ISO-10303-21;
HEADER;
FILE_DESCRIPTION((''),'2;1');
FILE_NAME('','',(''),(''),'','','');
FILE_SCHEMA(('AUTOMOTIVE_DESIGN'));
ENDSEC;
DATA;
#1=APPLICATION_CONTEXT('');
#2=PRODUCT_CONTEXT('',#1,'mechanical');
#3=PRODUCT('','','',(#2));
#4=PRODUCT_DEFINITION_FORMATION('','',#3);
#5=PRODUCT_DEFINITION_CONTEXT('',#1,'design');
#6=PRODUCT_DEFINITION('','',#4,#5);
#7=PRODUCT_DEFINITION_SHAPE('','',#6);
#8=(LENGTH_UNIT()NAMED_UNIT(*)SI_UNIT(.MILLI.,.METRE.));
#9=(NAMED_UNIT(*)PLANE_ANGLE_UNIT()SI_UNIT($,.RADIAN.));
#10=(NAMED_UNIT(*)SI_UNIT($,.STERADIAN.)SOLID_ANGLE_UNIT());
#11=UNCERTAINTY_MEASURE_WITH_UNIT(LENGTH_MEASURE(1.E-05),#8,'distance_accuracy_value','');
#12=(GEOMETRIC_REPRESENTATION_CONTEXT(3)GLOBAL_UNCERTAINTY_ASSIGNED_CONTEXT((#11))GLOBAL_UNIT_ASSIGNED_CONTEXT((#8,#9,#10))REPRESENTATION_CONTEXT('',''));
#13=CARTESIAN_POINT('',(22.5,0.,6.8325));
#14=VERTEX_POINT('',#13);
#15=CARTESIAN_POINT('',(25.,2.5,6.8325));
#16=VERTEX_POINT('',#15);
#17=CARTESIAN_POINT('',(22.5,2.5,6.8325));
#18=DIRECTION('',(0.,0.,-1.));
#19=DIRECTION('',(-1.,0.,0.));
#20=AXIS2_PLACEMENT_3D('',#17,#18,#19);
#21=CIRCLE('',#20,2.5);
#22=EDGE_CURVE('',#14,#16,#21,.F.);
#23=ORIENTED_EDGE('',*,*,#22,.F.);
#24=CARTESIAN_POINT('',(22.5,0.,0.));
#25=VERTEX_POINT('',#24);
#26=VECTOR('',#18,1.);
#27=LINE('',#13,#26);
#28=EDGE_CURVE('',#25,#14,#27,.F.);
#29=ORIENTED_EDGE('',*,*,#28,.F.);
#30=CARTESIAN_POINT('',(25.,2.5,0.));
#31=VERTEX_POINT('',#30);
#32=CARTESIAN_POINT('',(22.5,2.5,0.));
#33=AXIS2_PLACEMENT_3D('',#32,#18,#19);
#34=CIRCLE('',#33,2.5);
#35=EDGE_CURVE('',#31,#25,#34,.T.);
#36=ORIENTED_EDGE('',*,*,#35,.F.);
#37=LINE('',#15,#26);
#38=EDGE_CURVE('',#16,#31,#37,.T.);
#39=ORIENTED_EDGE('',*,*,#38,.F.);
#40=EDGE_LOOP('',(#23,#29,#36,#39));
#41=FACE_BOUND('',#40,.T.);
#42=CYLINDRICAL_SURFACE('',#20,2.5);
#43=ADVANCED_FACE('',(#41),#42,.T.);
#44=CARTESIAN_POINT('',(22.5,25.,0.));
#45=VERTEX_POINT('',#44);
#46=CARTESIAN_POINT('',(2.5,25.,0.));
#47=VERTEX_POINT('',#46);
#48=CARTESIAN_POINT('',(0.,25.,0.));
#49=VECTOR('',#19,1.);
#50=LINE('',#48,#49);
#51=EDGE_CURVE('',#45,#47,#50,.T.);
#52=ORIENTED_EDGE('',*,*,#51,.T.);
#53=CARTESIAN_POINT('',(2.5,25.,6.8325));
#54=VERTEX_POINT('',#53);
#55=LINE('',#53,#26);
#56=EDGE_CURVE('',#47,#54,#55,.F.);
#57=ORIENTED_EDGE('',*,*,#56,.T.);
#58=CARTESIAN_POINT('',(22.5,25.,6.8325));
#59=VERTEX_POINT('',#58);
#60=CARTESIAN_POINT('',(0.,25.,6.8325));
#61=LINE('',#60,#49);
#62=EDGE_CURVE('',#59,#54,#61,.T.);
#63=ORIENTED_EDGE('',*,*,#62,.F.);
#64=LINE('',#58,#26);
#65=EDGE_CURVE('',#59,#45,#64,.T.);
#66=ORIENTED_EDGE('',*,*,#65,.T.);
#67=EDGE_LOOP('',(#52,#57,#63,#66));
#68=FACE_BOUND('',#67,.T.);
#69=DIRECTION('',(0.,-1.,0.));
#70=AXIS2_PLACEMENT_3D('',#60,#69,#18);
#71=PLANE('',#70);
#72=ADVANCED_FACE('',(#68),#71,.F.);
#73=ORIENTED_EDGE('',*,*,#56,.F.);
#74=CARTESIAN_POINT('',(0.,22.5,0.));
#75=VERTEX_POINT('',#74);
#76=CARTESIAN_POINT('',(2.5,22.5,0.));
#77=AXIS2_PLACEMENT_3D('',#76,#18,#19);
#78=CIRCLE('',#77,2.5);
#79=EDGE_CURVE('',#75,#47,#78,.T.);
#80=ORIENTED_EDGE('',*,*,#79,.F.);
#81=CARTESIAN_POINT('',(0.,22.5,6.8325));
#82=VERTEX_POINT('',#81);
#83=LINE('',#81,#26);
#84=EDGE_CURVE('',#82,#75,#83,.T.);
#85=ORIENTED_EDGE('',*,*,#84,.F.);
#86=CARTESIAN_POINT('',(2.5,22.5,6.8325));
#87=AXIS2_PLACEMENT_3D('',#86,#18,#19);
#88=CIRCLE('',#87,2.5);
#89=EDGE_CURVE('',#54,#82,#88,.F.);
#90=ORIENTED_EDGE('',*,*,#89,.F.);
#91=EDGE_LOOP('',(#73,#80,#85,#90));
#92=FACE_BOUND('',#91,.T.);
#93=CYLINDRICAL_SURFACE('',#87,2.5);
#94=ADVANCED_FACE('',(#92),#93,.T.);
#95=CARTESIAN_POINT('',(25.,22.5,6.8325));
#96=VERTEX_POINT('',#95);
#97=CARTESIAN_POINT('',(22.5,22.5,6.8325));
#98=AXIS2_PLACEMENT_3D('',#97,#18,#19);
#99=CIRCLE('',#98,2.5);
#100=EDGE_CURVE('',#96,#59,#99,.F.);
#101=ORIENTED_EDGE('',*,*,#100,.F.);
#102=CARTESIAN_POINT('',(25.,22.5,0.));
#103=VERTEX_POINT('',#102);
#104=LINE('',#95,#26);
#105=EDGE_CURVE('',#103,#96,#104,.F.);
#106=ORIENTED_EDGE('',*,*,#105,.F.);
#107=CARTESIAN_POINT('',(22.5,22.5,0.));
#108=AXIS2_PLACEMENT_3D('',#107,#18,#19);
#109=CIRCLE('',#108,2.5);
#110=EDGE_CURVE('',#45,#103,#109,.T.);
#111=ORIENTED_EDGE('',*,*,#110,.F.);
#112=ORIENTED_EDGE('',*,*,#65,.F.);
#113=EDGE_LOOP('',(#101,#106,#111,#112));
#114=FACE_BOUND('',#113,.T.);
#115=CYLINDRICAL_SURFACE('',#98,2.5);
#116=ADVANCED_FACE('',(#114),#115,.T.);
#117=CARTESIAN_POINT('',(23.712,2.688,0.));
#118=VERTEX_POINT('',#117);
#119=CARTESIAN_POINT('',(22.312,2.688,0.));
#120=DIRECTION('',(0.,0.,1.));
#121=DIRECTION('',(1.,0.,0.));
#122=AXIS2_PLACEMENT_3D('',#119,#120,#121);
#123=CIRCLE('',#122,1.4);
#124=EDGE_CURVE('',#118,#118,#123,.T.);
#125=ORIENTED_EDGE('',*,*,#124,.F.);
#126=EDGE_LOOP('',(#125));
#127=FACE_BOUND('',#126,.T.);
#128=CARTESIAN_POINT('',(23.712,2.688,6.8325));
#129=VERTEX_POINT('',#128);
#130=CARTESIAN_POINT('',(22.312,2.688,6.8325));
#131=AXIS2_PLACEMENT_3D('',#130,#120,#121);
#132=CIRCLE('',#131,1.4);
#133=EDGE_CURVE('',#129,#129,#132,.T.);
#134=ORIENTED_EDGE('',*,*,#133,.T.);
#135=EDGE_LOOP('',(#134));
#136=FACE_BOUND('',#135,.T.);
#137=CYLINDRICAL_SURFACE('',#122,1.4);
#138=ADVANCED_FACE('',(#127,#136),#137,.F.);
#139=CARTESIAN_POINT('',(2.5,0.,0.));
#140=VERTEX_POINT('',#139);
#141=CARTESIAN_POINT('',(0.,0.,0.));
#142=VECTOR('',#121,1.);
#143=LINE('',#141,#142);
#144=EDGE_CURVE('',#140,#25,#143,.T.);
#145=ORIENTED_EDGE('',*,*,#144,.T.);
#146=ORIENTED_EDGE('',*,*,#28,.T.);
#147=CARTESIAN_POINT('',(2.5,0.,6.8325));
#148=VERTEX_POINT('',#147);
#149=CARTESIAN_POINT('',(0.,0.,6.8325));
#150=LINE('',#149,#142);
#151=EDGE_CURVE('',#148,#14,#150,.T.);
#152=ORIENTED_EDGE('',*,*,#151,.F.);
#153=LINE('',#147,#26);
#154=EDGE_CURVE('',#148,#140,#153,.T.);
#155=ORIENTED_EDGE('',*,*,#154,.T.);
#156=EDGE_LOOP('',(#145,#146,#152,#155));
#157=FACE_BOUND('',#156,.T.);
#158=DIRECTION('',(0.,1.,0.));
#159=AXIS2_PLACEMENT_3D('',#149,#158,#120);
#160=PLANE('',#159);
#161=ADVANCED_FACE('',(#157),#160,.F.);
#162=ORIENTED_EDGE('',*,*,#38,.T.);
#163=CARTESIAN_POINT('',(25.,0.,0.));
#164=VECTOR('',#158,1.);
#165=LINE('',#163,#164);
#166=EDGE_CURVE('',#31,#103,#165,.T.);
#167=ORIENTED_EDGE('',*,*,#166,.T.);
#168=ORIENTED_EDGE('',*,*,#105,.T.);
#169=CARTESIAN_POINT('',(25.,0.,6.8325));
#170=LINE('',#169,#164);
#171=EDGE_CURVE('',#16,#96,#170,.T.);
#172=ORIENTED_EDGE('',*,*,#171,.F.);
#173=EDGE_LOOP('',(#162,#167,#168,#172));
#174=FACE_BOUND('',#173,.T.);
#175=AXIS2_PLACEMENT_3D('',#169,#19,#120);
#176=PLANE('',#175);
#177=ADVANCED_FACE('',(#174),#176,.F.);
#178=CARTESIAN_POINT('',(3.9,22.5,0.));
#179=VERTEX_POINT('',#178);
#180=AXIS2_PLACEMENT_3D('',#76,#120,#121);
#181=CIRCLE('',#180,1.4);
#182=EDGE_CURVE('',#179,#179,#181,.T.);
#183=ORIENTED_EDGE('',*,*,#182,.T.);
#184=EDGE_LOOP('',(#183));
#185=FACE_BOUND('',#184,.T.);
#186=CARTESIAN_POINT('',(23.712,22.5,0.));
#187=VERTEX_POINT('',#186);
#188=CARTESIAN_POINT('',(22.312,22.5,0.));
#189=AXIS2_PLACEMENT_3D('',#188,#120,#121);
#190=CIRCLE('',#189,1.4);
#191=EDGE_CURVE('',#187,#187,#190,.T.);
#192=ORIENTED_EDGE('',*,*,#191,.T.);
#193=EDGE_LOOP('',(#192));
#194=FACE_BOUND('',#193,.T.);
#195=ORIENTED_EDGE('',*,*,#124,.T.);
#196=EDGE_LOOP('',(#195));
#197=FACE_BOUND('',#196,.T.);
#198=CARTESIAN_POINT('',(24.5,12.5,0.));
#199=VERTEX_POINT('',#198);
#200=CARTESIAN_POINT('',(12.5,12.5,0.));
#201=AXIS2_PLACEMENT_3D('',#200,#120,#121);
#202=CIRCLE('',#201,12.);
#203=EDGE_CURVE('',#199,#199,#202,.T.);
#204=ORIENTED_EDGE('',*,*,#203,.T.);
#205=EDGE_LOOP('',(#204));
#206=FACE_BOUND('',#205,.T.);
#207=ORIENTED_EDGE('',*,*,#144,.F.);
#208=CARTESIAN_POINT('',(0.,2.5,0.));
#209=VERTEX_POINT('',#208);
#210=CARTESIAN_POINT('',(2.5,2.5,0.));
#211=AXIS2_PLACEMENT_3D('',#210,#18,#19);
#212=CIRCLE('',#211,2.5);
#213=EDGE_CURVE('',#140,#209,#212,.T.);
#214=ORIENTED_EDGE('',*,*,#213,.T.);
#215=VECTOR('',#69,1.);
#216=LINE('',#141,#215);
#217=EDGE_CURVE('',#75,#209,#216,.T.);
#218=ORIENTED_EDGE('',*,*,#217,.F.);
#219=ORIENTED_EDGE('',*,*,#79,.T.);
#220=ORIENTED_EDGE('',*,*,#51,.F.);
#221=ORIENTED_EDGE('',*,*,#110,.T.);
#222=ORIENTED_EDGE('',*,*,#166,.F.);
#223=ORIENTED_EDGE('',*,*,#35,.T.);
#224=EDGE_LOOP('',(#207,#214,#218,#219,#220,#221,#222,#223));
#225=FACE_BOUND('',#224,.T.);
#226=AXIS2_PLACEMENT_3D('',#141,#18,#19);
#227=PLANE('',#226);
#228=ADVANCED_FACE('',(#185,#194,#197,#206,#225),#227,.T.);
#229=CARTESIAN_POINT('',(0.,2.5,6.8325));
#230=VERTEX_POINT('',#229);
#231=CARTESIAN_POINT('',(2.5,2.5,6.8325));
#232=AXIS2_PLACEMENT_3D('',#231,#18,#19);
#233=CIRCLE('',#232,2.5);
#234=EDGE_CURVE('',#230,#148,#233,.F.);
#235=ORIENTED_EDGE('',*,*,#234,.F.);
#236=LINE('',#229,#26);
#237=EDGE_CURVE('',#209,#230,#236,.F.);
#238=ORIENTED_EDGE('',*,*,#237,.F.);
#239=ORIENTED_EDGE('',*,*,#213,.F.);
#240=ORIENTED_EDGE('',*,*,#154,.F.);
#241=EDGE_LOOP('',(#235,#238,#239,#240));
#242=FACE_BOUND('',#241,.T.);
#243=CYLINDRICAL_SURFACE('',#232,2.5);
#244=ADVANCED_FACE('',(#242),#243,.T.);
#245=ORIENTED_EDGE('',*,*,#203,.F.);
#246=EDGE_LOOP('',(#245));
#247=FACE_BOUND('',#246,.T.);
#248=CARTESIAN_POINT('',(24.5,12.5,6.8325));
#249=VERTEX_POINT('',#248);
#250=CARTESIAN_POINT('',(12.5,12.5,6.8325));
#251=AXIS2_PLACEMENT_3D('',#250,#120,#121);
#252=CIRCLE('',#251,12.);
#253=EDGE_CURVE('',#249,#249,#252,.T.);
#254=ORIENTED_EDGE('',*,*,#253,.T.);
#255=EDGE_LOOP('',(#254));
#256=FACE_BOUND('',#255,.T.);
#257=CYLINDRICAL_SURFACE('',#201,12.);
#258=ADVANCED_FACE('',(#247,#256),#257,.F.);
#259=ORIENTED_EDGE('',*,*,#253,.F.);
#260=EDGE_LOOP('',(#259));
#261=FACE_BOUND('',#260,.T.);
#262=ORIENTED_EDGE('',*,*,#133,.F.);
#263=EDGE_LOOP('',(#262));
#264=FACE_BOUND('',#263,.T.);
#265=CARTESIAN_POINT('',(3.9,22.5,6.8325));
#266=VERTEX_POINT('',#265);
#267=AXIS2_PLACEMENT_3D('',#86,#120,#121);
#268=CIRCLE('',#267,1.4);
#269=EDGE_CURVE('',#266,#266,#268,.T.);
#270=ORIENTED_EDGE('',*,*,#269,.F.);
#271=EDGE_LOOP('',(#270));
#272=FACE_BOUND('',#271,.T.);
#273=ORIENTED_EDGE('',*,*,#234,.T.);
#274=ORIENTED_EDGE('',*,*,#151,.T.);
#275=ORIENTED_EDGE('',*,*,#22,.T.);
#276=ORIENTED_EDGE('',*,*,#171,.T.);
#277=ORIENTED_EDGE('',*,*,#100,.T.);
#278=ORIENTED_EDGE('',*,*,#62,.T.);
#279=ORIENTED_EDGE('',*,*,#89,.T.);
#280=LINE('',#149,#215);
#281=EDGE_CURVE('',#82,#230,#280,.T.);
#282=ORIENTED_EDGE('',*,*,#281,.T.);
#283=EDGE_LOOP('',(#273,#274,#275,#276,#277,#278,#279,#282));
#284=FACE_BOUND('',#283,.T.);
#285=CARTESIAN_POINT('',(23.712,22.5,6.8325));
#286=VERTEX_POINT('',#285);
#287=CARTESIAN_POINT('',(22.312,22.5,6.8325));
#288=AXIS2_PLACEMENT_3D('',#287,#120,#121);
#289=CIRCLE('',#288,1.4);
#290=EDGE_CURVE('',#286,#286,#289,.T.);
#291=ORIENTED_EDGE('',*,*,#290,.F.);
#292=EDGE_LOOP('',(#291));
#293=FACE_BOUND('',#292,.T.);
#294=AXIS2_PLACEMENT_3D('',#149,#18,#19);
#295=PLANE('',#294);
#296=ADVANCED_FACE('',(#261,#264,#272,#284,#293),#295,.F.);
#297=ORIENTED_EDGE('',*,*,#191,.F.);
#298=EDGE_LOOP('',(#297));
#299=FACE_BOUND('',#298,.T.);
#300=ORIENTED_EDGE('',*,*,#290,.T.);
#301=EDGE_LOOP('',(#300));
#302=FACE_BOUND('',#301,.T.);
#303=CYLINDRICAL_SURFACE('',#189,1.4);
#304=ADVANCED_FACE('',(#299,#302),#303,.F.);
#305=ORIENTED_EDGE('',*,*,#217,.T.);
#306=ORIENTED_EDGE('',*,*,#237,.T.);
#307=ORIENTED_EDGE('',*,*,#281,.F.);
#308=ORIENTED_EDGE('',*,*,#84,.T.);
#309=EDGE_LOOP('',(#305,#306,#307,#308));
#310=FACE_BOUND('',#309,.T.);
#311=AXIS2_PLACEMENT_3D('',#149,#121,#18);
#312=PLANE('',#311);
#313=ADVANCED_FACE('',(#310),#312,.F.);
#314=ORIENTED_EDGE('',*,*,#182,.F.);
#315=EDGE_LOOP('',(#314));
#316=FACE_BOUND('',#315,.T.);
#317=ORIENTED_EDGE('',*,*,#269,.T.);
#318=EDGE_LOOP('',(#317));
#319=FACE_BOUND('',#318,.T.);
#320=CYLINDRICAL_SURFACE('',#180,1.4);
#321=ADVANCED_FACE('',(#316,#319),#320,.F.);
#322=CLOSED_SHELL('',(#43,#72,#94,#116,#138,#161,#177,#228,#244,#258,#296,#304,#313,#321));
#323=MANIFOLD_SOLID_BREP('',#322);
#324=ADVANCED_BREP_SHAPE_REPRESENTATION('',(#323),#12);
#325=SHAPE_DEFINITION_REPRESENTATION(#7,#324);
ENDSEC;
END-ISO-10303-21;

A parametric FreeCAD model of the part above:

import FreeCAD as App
import Part
import Sketcher
Q = App.Units.Quantity


def edges_at(feature, points):
    """Names of the edges that pass closest to the given points."""
    edges = feature.Shape.Edges
    near = lambda p: min(range(len(edges)), key=lambda i: edges[i].distToShape(Part.Vertex(*p))[0])
    return sorted({f"Edge{near(p) + 1}" for p in points})


def add_polygon(sketch, points):
    """Adds a closed chain of lines whose ends are joined by coincident constraints."""
    first, n = sketch.GeometryCount, len(points)
    for a, b in zip(points, points[1:] + points[:1]):
        sketch.addGeometry(Part.LineSegment(App.Vector(*a, 0), App.Vector(*b, 0)), False)
    for i in range(n):
        sketch.addConstraint(Sketcher.Constraint("Coincident", first + i, 2, first + (i + 1) % n, 1))

doc = App.newDocument("Part")
body = doc.addObject("PartDesign::Body", "Body")

# Sketch on XY plane
sketch1 = doc.addObject("Sketcher::SketchObject", "Sketch")
body.addObject(sketch1)
sketch1.AttachmentSupport = (doc.XY_Plane, [""])
sketch1.MapMode = "FlatFace"
add_polygon(sketch1, [(0, 25), (0, 0), (25, 0), (25, 25)])  # lines 0-3
sketch1.addConstraint([
    Sketcher.Constraint("Vertical", 0),
    Sketcher.Constraint("Horizontal", 1),
    Sketcher.Constraint("Vertical", 2),
    Sketcher.Constraint("Horizontal", 3),
    Sketcher.Constraint("Coincident", 0, 2, -1, 1),
    Sketcher.Constraint("Equal", 3, 0),
    Sketcher.Constraint("DistanceX", 1, 1, 1, 2, Q("25 mm")),
])
pad1 = doc.addObject("PartDesign::Pad", "Pad")
body.addObject(pad1)
pad1.Profile = sketch1
pad1.Length = 6.8325

# Sketch on XY plane
sketch2 = doc.addObject("Sketcher::SketchObject", "Sketch001")
body.addObject(sketch2)
sketch2.AttachmentSupport = (doc.XY_Plane, [""])
sketch2.MapMode = "FlatFace"
sketch2.AttachmentOffset = App.Placement(App.Vector(0, 0, 6.8325), App.Rotation())
sketch2.addGeometry(Part.Circle(App.Vector(12.5, 12.5, 0), App.Vector(0, 0, 1), 12), False)
sketch2.addConstraint([
    Sketcher.Constraint("Diameter", 0, Q("24 mm")),
    Sketcher.Constraint("DistanceX", -1, 1, 0, 3, Q("12.5 mm")),
    Sketcher.Constraint("DistanceY", -1, 1, 0, 3, Q("12.5 mm")),
])
pocket1 = doc.addObject("PartDesign::Pocket", "Pocket")
body.addObject(pocket1)
pocket1.Profile = sketch2
pocket1.Type = "ThroughAll"

# Sketch on XY plane
sketch3 = doc.addObject("Sketcher::SketchObject", "Sketch002")
body.addObject(sketch3)
sketch3.AttachmentSupport = (doc.XY_Plane, [""])
sketch3.MapMode = "FlatFace"
sketch3.AttachmentOffset = App.Placement(App.Vector(0, 0, 6.8325), App.Rotation())
sketch3.addGeometry([
    Part.Circle(App.Vector(2.5, 22.5, 0), App.Vector(0, 0, 1), 1.4),
    Part.Circle(App.Vector(22.312, 22.5, 0), App.Vector(0, 0, 1), 1.4),
    Part.Circle(App.Vector(22.312, 2.688, 0), App.Vector(0, 0, 1), 1.4),
], False)
sketch3.addConstraint([
    Sketcher.Constraint("Equal", 0, 1),
    Sketcher.Constraint("Equal", 1, 2),
    Sketcher.Constraint("Horizontal", 0, 3, 1, 3),
    Sketcher.Constraint("Vertical", 1, 3, 2, 3),
    Sketcher.Constraint("Diameter", 0, Q("2.8 mm")),
    Sketcher.Constraint("DistanceX", -1, 1, 0, 3, Q("2.5 mm")),
    Sketcher.Constraint("DistanceY", -1, 1, 0, 3, Q("22.5 mm")),
    Sketcher.Constraint("DistanceX", -1, 1, 1, 3, Q("22.312 mm")),
    Sketcher.Constraint("DistanceY", -1, 1, 2, 3, Q("2.688 mm")),
])
pocket2 = doc.addObject("PartDesign::Pocket", "Pocket001")
body.addObject(pocket2)
pocket2.Profile = sketch3
pocket2.Type = "ThroughAll"
doc.recompute()

fillet = doc.addObject("PartDesign::Fillet", "Fillet")
body.addObject(fillet)
fillet.Base = (pocket2, edges_at(pocket2, [
    (0, 25, 3.416),
    (25, 25, 3.416),
    (25, 0, 3.416),
    (0, 0, 3.416),
]))
fillet.Radius = 2.5

doc.recompute()
